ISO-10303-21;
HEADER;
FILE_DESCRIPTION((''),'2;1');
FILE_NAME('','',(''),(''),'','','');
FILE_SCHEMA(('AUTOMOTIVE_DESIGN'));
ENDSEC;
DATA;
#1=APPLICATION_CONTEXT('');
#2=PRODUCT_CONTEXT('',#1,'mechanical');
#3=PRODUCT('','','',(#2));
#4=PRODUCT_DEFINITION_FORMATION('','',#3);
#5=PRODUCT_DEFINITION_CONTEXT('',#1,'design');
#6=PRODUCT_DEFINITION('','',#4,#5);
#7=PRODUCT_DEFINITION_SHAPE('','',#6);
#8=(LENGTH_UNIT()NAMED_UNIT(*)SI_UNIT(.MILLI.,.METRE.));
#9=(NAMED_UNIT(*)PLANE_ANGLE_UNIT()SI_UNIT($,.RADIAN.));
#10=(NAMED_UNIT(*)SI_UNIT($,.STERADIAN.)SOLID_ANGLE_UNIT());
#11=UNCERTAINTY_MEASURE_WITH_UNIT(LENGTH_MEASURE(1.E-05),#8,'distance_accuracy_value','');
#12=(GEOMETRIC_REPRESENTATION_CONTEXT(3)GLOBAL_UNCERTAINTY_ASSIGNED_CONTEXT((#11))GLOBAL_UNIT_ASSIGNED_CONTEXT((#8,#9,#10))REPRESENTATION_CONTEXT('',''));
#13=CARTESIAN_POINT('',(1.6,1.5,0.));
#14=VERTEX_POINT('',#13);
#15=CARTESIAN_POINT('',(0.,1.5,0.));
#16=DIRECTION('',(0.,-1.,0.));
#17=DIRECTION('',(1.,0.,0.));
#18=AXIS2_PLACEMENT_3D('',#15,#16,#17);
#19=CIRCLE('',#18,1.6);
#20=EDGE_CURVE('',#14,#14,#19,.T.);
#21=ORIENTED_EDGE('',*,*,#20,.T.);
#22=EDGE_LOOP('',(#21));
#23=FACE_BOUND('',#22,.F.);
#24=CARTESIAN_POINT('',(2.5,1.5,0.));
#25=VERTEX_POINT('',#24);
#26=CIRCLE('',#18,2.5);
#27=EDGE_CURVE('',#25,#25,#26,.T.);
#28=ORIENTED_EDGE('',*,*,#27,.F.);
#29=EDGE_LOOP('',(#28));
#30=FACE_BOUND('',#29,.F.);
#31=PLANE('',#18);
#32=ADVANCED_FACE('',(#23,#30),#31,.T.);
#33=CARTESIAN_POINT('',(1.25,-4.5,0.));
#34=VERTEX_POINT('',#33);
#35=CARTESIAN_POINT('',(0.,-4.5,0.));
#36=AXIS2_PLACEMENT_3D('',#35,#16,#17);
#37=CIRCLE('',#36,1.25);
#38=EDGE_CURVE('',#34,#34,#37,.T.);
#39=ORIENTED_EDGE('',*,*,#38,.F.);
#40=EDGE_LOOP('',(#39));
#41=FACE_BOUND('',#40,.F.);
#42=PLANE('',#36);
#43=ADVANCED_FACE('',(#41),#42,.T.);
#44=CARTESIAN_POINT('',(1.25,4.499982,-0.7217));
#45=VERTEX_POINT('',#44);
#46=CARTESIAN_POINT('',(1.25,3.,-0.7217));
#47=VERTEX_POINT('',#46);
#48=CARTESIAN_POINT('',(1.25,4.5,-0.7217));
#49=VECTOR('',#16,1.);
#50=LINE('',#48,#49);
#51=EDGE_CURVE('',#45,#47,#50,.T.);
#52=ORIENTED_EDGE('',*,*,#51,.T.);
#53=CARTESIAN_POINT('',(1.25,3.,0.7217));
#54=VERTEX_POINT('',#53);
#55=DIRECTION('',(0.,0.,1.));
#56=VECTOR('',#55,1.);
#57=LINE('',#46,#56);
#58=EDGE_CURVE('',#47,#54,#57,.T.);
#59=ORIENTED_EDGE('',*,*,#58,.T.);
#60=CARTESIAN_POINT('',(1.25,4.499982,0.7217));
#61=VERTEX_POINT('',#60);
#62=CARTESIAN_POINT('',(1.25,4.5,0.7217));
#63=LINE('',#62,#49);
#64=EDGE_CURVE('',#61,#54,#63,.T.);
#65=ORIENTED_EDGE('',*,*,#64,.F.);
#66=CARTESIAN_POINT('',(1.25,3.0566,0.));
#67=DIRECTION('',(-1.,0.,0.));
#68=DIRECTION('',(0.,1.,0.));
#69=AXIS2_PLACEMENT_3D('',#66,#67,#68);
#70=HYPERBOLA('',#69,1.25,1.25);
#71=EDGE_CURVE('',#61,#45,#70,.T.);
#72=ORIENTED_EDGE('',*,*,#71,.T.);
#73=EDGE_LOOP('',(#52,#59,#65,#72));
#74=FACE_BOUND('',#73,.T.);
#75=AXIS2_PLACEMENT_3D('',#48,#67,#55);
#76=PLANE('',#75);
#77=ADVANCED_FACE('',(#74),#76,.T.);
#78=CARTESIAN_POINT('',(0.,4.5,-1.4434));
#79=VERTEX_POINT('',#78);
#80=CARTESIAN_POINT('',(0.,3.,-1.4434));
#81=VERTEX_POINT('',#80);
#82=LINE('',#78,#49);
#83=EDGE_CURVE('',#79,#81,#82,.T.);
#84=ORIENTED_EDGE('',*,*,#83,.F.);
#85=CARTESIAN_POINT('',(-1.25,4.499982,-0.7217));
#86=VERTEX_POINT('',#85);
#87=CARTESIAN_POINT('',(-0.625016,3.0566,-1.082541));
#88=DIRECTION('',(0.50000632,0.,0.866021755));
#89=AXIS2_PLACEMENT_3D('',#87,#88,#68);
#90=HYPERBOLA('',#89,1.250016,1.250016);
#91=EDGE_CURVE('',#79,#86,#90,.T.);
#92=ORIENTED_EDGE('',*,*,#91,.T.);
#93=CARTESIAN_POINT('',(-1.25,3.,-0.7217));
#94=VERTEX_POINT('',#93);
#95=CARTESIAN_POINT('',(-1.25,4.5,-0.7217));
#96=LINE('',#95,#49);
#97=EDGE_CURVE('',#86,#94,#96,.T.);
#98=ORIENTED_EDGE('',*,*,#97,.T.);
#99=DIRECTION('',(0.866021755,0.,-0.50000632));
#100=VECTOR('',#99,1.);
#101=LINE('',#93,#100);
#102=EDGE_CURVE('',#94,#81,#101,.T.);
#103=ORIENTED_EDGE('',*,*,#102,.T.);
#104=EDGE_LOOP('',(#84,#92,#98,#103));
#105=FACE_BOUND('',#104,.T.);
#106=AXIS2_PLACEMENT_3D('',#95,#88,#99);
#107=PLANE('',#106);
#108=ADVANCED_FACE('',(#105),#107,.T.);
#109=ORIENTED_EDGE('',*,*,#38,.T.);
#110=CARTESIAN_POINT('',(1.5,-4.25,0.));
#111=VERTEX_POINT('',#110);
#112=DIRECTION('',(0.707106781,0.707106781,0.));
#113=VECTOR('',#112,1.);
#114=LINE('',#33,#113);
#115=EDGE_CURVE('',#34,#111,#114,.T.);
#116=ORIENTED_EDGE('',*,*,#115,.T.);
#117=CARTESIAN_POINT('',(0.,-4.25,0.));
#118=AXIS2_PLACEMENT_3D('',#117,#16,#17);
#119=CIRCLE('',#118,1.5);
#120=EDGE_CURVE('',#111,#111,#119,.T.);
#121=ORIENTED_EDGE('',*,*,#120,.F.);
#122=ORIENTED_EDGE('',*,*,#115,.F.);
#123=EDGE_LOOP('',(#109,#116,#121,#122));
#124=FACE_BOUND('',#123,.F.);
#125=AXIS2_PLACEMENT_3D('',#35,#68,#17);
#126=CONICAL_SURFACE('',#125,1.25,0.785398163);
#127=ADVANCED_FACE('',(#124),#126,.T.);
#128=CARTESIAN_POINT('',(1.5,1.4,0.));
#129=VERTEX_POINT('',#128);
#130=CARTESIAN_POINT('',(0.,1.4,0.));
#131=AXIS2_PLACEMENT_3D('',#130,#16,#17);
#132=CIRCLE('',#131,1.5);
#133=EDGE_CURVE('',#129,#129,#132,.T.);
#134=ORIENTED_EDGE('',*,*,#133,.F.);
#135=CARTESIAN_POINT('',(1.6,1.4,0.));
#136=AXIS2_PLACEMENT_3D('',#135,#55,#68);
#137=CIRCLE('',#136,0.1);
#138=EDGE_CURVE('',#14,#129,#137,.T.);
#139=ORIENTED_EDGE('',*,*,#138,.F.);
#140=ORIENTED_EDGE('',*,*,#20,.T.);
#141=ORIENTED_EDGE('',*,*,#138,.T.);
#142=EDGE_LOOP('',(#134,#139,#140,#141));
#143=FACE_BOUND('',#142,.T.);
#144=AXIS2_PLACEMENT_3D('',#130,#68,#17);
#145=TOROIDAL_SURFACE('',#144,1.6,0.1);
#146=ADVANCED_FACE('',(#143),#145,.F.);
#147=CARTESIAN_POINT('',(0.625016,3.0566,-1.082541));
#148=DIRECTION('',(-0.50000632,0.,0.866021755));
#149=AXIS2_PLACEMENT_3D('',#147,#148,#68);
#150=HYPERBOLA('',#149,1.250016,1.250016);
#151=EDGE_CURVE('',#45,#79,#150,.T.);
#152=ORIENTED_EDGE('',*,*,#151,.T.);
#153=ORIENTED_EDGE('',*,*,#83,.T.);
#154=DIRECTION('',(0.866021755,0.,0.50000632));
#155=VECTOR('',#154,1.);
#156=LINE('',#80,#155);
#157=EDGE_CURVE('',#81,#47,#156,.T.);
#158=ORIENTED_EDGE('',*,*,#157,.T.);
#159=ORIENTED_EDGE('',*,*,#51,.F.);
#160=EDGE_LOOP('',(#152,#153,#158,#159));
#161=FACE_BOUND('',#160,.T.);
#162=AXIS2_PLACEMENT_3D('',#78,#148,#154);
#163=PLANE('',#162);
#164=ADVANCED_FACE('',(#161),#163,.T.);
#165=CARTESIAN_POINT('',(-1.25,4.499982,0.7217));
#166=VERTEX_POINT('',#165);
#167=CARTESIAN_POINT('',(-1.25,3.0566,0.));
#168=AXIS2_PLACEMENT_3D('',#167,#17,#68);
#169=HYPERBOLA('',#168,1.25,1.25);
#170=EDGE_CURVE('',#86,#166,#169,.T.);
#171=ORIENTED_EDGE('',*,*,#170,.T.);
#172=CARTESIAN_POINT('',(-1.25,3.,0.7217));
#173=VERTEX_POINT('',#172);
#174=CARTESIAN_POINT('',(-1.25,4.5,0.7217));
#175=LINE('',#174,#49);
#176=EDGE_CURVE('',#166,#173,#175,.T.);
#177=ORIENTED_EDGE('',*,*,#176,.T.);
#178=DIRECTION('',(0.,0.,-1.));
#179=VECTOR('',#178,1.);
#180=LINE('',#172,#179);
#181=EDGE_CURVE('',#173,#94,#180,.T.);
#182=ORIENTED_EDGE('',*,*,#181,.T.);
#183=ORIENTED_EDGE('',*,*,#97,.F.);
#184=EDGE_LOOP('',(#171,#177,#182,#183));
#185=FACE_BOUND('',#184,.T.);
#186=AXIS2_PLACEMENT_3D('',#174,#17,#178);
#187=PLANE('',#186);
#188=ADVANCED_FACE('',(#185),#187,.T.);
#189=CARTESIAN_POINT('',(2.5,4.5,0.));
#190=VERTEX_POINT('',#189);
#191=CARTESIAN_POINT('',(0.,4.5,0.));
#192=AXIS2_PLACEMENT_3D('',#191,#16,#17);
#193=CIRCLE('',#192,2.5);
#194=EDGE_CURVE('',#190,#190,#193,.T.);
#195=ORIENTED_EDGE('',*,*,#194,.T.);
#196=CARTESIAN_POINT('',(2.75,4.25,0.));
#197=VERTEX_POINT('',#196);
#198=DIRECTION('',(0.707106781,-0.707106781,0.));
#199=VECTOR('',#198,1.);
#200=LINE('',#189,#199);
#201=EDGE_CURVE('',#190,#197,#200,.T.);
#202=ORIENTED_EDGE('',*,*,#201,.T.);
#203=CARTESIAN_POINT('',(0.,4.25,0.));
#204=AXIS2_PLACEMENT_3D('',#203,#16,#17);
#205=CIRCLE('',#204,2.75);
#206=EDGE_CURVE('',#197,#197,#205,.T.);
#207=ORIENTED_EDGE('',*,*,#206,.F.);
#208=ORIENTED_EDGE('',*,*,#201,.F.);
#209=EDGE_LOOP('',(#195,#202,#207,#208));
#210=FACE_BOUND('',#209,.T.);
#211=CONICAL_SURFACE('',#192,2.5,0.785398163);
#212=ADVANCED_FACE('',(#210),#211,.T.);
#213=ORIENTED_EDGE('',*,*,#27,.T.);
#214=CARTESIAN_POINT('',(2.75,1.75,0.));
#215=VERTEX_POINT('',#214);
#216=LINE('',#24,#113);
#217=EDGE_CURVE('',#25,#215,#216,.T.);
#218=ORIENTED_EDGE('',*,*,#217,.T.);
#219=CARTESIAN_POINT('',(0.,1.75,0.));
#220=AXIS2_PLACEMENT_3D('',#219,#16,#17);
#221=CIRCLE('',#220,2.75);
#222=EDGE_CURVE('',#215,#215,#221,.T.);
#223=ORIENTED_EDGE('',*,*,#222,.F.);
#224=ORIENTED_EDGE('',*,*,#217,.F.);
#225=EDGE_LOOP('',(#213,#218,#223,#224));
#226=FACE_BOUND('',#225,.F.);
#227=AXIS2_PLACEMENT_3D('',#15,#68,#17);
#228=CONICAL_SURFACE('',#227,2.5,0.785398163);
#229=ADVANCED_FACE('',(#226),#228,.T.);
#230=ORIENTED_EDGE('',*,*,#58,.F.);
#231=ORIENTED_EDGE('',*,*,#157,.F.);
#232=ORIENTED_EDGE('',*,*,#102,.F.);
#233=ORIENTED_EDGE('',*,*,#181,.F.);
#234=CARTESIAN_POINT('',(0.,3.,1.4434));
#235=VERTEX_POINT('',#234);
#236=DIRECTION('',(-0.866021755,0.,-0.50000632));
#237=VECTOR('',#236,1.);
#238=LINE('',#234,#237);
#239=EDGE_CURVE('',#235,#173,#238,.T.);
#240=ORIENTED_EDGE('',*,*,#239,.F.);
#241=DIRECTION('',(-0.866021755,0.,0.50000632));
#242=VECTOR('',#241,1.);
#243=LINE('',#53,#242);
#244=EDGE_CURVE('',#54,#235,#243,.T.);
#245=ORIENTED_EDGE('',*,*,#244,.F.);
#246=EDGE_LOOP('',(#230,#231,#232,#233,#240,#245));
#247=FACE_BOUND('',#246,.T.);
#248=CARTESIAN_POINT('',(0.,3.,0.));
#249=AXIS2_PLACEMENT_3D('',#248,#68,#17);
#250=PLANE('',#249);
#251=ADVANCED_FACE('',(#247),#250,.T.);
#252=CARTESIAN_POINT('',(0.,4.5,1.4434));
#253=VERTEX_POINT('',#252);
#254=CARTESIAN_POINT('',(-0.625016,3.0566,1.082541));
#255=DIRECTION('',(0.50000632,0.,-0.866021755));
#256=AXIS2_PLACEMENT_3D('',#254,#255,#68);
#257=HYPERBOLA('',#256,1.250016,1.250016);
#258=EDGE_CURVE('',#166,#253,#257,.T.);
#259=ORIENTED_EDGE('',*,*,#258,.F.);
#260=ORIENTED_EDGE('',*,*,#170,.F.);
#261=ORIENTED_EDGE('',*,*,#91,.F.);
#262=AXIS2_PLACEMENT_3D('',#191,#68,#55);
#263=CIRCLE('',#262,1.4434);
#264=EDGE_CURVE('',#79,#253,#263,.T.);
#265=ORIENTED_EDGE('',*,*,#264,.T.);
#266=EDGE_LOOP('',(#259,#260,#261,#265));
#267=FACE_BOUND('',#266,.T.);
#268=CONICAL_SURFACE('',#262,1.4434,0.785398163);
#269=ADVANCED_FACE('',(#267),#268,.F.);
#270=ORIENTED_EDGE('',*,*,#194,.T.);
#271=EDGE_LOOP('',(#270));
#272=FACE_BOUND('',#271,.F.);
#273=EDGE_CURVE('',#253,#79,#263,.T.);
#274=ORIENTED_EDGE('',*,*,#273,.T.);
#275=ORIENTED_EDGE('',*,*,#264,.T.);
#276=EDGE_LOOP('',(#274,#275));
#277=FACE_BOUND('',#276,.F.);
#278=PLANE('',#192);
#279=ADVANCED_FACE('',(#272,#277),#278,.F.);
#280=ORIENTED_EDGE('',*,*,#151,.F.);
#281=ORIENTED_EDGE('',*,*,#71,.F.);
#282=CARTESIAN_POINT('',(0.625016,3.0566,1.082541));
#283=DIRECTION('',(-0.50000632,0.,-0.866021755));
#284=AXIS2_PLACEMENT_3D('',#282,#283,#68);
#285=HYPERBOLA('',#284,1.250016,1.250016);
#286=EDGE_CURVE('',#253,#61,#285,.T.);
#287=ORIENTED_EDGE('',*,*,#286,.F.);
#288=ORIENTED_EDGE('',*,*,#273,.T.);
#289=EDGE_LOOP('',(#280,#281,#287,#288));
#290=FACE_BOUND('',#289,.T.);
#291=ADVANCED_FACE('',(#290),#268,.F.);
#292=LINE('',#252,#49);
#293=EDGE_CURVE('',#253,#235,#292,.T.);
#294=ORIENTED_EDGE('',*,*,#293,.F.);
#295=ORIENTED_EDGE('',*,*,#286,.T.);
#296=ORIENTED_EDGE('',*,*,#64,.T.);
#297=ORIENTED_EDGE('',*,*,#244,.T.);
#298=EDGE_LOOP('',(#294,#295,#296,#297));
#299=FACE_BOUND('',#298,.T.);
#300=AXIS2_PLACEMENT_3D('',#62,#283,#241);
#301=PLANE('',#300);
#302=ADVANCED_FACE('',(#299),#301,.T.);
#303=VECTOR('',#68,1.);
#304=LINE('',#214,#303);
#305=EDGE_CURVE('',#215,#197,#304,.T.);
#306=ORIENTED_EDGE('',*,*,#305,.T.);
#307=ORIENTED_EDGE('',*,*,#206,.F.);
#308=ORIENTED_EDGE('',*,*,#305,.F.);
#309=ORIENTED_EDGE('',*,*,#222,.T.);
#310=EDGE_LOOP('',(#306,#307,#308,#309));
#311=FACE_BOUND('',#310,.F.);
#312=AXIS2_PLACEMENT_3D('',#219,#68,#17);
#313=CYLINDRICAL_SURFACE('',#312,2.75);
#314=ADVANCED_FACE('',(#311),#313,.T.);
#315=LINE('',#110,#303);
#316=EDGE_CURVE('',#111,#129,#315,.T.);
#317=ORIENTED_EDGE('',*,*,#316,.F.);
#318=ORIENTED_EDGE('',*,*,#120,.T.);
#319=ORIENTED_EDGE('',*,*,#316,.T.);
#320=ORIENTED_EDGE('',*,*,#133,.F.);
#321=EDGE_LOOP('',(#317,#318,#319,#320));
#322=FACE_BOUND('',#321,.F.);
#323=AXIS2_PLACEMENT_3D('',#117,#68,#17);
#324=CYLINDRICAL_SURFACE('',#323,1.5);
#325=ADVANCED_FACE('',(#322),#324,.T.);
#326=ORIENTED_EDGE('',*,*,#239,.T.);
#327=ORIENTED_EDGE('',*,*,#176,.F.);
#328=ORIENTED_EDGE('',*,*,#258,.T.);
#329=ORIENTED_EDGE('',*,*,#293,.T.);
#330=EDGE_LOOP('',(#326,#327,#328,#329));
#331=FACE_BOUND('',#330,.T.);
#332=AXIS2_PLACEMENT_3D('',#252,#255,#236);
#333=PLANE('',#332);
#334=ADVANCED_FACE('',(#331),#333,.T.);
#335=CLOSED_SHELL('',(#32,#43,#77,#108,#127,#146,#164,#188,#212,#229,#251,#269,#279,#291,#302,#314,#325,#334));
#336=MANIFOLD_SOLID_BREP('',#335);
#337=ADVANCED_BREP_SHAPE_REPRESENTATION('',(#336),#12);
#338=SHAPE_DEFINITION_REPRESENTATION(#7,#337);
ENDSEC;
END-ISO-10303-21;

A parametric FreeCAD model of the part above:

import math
import FreeCAD as App
import Part
import Sketcher

V = App.Vector
Q = App.Units.Quantity

doc = App.newDocument("Part")
params = doc.addObject("Spreadsheet::Sheet", "Params")
for row, (alias, value) in enumerate([
    ("sketch1_radius", "0.1 mm"),
    ("sketch1_width", "0.9 mm"),
    ("revolution_angle", "360 deg"),
    ("pocket1_length", "1.5 mm"),
    ("sketch3_width", "0.5 mm"),
    ("groove_angle", "360 deg"),
], start=1):
    params.set(f"A{row}", alias)
    params.set(f"B{row}", "=" + value)
    params.setAlias(f"B{row}", alias)

body = doc.addObject("PartDesign::Body", "Body")

# Sketch on XY plane
sketch1 = doc.addObject("Sketcher::SketchObject", "Sketch")
body.addObject(sketch1)
sketch1.AttachmentSupport = (doc.XY_Plane, [""])
sketch1.MapMode = "FlatFace"
sketch1.addGeometry([
    Part.LineSegment(V(2.5, 4.5, 0), V(0, 4.5, 0)),  # 0
    Part.LineSegment(V(0, 4.5, 0), V(0, -4.5, 0)),  # 1
    Part.LineSegment(V(0, -4.5, 0), V(1.25, -4.5, 0)),  # 2
    Part.LineSegment(V(1.25, -4.5, 0), V(1.5, -4.25, 0)),  # 3
    Part.LineSegment(V(1.5, -4.25, 0), V(1.5, 1.4, 0)),  # 4
    Part.ArcOfCircle(Part.Circle(V(1.6, 1.4, 0), V(0, 0, 1), 0.1), math.radians(90), math.radians(180)),  # 5
    Part.LineSegment(V(1.6, 1.5, 0), V(2.5, 1.5, 0)),  # 6
    Part.LineSegment(V(2.5, 1.5, 0), V(2.75, 1.75, 0)),  # 7
    Part.LineSegment(V(2.75, 1.75, 0), V(2.75, 4.25, 0)),  # 8
    Part.LineSegment(V(2.75, 4.25, 0), V(2.5, 4.5, 0)),  # 9
], False)
sketch1.addConstraint([
    Sketcher.Constraint("Coincident", 0, 2, 1, 1),
    Sketcher.Constraint("Coincident", 1, 2, 2, 1),
    Sketcher.Constraint("Coincident", 2, 2, 3, 1),
    Sketcher.Constraint("Coincident", 3, 2, 4, 1),
    Sketcher.Constraint("Tangent", 4, 2, 5, 2),
    Sketcher.Constraint("Tangent", 5, 1, 6, 1),
    Sketcher.Constraint("Coincident", 6, 2, 7, 1),
    Sketcher.Constraint("Coincident", 7, 2, 8, 1),
    Sketcher.Constraint("Coincident", 8, 2, 9, 1),
    Sketcher.Constraint("Coincident", 9, 2, 0, 1),
    Sketcher.Constraint("Horizontal", 0),
    Sketcher.Constraint("Vertical", 1),
    Sketcher.Constraint("Horizontal", 2),
    Sketcher.Constraint("Vertical", 4),
    Sketcher.Constraint("Horizontal", 6),
    Sketcher.Constraint("Vertical", 8),
    Sketcher.Constraint("Symmetric", 0, 2, 1, 2, -1, 1),
    Sketcher.Constraint("Parallel", 3, 7),
    Sketcher.Constraint("Perpendicular", 7, 9),
    Sketcher.Constraint("Vertical", 6, 2, 9, 2),
    Sketcher.Constraint("Equal", 0, 8),
    Sketcher.Constraint("Equal", 3, 7),
    Sketcher.Constraint("Equal", 7, 9),
    Sketcher.Constraint("DistanceY", 5, 1, 0, 2, Q("3 mm")),
    Sketcher.Constraint("DistanceY", 2, 2, 5, 1, Q("6 mm")),
    Sketcher.Constraint("Radius", 5, Q("0.1 mm")),
    Sketcher.Constraint("DistanceX", 2, 2, 3, 2, Q("0.25 mm")),
    Sketcher.Constraint("DistanceX", 6, 1, 6, 2, Q("0.9 mm")),
])
sketch1.setExpression("Constraints[25]", "Params.sketch1_radius")
sketch1.setExpression("Constraints[27]", "Params.sketch1_width")
revolution = doc.addObject("PartDesign::Revolution", "Revolution")
body.addObject(revolution)
revolution.Profile = sketch1
revolution.ReferenceAxis = (sketch1, ["V_Axis"])
revolution.setExpression("Angle", "Params.revolution_angle")

# Sketch on XZ plane
sketch2 = doc.addObject("Sketcher::SketchObject", "Sketch001")
body.addObject(sketch2)
sketch2.AttachmentSupport = (doc.XZ_Plane, [""])
sketch2.MapMode = "FlatFace"
sketch2.AttachmentOffset = App.Placement(V(0, 0, -4.5), App.Rotation())
sketch2.addGeometry([
    Part.LineSegment(V(-1.25, 0.7217, 0), V(0, 1.4434, 0)),  # 0
    Part.LineSegment(V(0, 1.4434, 0), V(1.25, 0.7217, 0)),  # 1
    Part.LineSegment(V(1.25, 0.7217, 0), V(1.25, -0.7217, 0)),  # 2
    Part.LineSegment(V(1.25, -0.7217, 0), V(0, -1.4434, 0)),  # 3
    Part.LineSegment(V(0, -1.4434, 0), V(-1.25, -0.7217, 0)),  # 4
    Part.LineSegment(V(-1.25, -0.7217, 0), V(-1.25, 0.7217, 0)),  # 5
], False)
sketch2.addConstraint([
    Sketcher.Constraint("Coincident", 0, 2, 1, 1),
    Sketcher.Constraint("Coincident", 1, 2, 2, 1),
    Sketcher.Constraint("Coincident", 2, 2, 3, 1),
    Sketcher.Constraint("Coincident", 3, 2, 4, 1),
    Sketcher.Constraint("Coincident", 4, 2, 5, 1),
    Sketcher.Constraint("Coincident", 5, 2, 0, 1),
    Sketcher.Constraint("Vertical", 2),
    Sketcher.Constraint("Vertical", 5),
    Sketcher.Constraint("Symmetric", 0, 2, 3, 2, -1, 1),
    Sketcher.Constraint("Symmetric", 1, 2, 4, 2, -1, 1),
    Sketcher.Constraint("PointOnObject", 0, 2, -2),
    Sketcher.Constraint("Parallel", 0, 3),
    Sketcher.Constraint("Horizontal", 2, 2, 4, 2),
    Sketcher.Constraint("DistanceX", 4, 2, 2, 2, Q("2.5 mm")),
    Sketcher.Constraint("Angle", 0, Q("30.0004 deg")),
    Sketcher.Constraint("DistanceY", 2, 2, 2, 1, Q("1.4434 mm")),
])
pocket1 = doc.addObject("PartDesign::Pocket", "Pocket")
body.addObject(pocket1)
pocket1.Profile = sketch2
pocket1.setExpression("Length", "Params.pocket1_length")
pocket1.Reversed = True

# Sketch on YZ plane
sketch3 = doc.addObject("Sketcher::SketchObject", "Sketch002")
body.addObject(sketch3)
sketch3.AttachmentSupport = (doc.YZ_Plane, [""])
sketch3.MapMode = "FlatFace"
sketch3.addGeometry([
    Part.LineSegment(V(4.5, 0.9434, 0), V(4.5, 1.4434, 0)),
    Part.LineSegment(V(4.5, 1.4434, 0), V(4, 0.9434, 0)),
    Part.LineSegment(V(4, 0.9434, 0), V(4.5, 0.9434, 0)),
], False)
sketch3.addConstraint([
    Sketcher.Constraint("Coincident", 0, 2, 1, 1),
    Sketcher.Constraint("Coincident", 1, 2, 2, 1),
    Sketcher.Constraint("Coincident", 2, 2, 0, 1),
    Sketcher.Constraint("Vertical", 0),
    Sketcher.Constraint("Horizontal", 2),
    Sketcher.Constraint("Equal", 2, 0),
    Sketcher.Constraint("DistanceX", 2, 1, 2, 2, Q("0.5 mm")),
    Sketcher.Constraint("DistanceX", -1, 1, 1, 2, Q("4 mm")),
    Sketcher.Constraint("DistanceY", -1, 1, 0, 2, Q("1.4434 mm")),
])
sketch3.setExpression("Constraints[6]", "Params.sketch3_width")
groove = doc.addObject("PartDesign::Groove", "Groove")
body.addObject(groove)
groove.Profile = sketch3
groove.ReferenceAxis = (sketch3, ["H_Axis"])
groove.setExpression("Angle", "Params.groove_angle")

doc.recompute()
